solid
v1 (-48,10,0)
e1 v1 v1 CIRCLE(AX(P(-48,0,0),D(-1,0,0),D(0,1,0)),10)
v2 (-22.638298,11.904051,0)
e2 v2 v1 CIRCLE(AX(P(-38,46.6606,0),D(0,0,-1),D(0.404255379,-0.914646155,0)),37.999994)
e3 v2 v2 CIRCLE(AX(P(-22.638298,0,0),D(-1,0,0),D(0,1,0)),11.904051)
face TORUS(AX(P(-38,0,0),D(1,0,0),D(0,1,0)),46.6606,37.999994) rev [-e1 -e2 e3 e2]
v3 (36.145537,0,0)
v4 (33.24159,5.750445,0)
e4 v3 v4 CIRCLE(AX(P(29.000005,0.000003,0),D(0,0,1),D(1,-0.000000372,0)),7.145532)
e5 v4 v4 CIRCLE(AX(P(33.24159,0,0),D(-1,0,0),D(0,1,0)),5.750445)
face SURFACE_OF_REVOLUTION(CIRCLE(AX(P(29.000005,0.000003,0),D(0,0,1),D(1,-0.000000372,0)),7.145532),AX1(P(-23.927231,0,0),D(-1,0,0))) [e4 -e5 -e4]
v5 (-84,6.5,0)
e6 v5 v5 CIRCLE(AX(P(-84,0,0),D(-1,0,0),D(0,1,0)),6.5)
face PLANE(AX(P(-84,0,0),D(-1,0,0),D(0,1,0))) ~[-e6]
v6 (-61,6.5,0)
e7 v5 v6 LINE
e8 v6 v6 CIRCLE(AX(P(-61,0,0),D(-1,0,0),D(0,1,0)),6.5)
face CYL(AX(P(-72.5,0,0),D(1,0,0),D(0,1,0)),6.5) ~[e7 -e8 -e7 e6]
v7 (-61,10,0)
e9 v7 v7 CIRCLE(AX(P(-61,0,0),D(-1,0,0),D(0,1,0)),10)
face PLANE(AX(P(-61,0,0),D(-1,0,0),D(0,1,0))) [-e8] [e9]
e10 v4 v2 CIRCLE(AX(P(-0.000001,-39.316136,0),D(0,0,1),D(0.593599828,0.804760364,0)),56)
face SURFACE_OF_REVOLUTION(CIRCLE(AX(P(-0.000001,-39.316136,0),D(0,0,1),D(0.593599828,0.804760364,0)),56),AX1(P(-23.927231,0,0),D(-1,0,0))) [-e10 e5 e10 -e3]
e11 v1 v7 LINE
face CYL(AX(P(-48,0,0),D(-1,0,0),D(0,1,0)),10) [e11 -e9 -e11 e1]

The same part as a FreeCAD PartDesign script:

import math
import FreeCAD as App
import Part
import Sketcher
from FreeCAD import Vector
Q = App.Units.Quantity

doc = App.newDocument("Part")
body = doc.addObject("PartDesign::Body", "Body")

# Sketch on XY plane
sketch1 = body.newObject("Sketcher::SketchObject", "Sketch")
sketch1.AttachmentSupport = (doc.getObject("XY_Plane"), [""])
sketch1.MapMode = "FlatFace"
sketch1.addGeometry(Part.ArcOfCircle(Part.Circle(Vector(29.000005, 0.000003, 0), Vector(0, 0, 1), 7.145532), math.radians(-0.000021), math.radians(53.587132)), False)
sketch1.addGeometry(Part.ArcOfCircle(Part.Circle(Vector(-0.000001, -39.316136, 0), Vector(0, 0, 1), 56), math.radians(53.587119), math.radians(113.844469)), False)
sketch1.addGeometry(Part.ArcOfCircle(Part.Circle(Vector(-38, 46.6606, 0), Vector(0, 0, 1), 37.999994), math.radians(-105.257526), math.radians(-66.155526)), False)
sketch1.addGeometry(Part.LineSegment(Vector(-48, 10, 0), Vector(-61, 10, 0)), False)
sketch1.addGeometry(Part.LineSegment(Vector(-61, 10, 0), Vector(-61, 6.5, 0)), False)
sketch1.addGeometry(Part.LineSegment(Vector(-61, 6.5, 0), Vector(-84, 6.5, 0)), False)
sketch1.addGeometry(Part.LineSegment(Vector(-84, 6.5, 0), Vector(-84, 0, 0)), False)
sketch1.addGeometry(Part.LineSegment(Vector(-84, 0, 0), Vector(36.145537, 0, 0)), False)
sketch1.addConstraint(Sketcher.Constraint("Tangent", 0, 2, 1, 1))
sketch1.addConstraint(Sketcher.Constraint("Tangent", 1, 2, 2, 2))
sketch1.addConstraint(Sketcher.Constraint("Coincident", 2, 1, 3, 1))
sketch1.addConstraint(Sketcher.Constraint("Coincident", 3, 2, 4, 1))
sketch1.addConstraint(Sketcher.Constraint("Coincident", 4, 2, 5, 1))
sketch1.addConstraint(Sketcher.Constraint("Coincident", 5, 2, 6, 1))
sketch1.addConstraint(Sketcher.Constraint("Coincident", 6, 2, 7, 1))
sketch1.addConstraint(Sketcher.Constraint("Coincident", 7, 2, 0, 1))
sketch1.addConstraint(Sketcher.Constraint("Horizontal", 3))
sketch1.addConstraint(Sketcher.Constraint("Vertical", 4))
sketch1.addConstraint(Sketcher.Constraint("Horizontal", 5))
sketch1.addConstraint(Sketcher.Constraint("Vertical", 6))
sketch1.addConstraint(Sketcher.Constraint("Horizontal", 7))
sketch1.addConstraint(Sketcher.Constraint("PointOnObject", 1, 3, -2))
sketch1.addConstraint(Sketcher.Constraint("PointOnObject", 6, 2, -1))
sketch1.addConstraint(Sketcher.Constraint("Radius", 1, Q("56 mm")))
sketch1.addConstraint(Sketcher.Constraint("DistanceX", 3, 2, 3, 1, Q("13 mm")))
sketch1.addConstraint(Sketcher.Constraint("DistanceX", 5, 2, 5, 1, Q("23 mm")))
sketch1.addConstraint(Sketcher.Constraint("DistanceY", 4, 2, 4, 1, Q("3.5 mm")))
sketch1.addConstraint(Sketcher.Constraint("DistanceY", 6, 2, 6, 1, Q("6.5 mm")))
sketch1.addConstraint(Sketcher.Constraint("DistanceX", 2, 3, -1, 1, Q("38 mm")))
sketch1.addConstraint(Sketcher.Constraint("DistanceX", 2, 1, -1, 1, Q("48 mm")))
sketch1.addConstraint(Sketcher.Constraint("Radius", 0, Q("7.145532 mm")))
sketch1.addConstraint(Sketcher.Constraint("Radius", 2, Q("37.999994 mm")))
sketch1.addConstraint(Sketcher.Constraint("DistanceX", 7, 1, 7, 2, Q("120.145537 mm")))
revolution = body.newObject("PartDesign::Revolution", "Revolution")
revolution.Profile = sketch1
revolution.ReferenceAxis = (sketch1, ["H_Axis"])
revolution.Angle = 360

doc.recompute()
